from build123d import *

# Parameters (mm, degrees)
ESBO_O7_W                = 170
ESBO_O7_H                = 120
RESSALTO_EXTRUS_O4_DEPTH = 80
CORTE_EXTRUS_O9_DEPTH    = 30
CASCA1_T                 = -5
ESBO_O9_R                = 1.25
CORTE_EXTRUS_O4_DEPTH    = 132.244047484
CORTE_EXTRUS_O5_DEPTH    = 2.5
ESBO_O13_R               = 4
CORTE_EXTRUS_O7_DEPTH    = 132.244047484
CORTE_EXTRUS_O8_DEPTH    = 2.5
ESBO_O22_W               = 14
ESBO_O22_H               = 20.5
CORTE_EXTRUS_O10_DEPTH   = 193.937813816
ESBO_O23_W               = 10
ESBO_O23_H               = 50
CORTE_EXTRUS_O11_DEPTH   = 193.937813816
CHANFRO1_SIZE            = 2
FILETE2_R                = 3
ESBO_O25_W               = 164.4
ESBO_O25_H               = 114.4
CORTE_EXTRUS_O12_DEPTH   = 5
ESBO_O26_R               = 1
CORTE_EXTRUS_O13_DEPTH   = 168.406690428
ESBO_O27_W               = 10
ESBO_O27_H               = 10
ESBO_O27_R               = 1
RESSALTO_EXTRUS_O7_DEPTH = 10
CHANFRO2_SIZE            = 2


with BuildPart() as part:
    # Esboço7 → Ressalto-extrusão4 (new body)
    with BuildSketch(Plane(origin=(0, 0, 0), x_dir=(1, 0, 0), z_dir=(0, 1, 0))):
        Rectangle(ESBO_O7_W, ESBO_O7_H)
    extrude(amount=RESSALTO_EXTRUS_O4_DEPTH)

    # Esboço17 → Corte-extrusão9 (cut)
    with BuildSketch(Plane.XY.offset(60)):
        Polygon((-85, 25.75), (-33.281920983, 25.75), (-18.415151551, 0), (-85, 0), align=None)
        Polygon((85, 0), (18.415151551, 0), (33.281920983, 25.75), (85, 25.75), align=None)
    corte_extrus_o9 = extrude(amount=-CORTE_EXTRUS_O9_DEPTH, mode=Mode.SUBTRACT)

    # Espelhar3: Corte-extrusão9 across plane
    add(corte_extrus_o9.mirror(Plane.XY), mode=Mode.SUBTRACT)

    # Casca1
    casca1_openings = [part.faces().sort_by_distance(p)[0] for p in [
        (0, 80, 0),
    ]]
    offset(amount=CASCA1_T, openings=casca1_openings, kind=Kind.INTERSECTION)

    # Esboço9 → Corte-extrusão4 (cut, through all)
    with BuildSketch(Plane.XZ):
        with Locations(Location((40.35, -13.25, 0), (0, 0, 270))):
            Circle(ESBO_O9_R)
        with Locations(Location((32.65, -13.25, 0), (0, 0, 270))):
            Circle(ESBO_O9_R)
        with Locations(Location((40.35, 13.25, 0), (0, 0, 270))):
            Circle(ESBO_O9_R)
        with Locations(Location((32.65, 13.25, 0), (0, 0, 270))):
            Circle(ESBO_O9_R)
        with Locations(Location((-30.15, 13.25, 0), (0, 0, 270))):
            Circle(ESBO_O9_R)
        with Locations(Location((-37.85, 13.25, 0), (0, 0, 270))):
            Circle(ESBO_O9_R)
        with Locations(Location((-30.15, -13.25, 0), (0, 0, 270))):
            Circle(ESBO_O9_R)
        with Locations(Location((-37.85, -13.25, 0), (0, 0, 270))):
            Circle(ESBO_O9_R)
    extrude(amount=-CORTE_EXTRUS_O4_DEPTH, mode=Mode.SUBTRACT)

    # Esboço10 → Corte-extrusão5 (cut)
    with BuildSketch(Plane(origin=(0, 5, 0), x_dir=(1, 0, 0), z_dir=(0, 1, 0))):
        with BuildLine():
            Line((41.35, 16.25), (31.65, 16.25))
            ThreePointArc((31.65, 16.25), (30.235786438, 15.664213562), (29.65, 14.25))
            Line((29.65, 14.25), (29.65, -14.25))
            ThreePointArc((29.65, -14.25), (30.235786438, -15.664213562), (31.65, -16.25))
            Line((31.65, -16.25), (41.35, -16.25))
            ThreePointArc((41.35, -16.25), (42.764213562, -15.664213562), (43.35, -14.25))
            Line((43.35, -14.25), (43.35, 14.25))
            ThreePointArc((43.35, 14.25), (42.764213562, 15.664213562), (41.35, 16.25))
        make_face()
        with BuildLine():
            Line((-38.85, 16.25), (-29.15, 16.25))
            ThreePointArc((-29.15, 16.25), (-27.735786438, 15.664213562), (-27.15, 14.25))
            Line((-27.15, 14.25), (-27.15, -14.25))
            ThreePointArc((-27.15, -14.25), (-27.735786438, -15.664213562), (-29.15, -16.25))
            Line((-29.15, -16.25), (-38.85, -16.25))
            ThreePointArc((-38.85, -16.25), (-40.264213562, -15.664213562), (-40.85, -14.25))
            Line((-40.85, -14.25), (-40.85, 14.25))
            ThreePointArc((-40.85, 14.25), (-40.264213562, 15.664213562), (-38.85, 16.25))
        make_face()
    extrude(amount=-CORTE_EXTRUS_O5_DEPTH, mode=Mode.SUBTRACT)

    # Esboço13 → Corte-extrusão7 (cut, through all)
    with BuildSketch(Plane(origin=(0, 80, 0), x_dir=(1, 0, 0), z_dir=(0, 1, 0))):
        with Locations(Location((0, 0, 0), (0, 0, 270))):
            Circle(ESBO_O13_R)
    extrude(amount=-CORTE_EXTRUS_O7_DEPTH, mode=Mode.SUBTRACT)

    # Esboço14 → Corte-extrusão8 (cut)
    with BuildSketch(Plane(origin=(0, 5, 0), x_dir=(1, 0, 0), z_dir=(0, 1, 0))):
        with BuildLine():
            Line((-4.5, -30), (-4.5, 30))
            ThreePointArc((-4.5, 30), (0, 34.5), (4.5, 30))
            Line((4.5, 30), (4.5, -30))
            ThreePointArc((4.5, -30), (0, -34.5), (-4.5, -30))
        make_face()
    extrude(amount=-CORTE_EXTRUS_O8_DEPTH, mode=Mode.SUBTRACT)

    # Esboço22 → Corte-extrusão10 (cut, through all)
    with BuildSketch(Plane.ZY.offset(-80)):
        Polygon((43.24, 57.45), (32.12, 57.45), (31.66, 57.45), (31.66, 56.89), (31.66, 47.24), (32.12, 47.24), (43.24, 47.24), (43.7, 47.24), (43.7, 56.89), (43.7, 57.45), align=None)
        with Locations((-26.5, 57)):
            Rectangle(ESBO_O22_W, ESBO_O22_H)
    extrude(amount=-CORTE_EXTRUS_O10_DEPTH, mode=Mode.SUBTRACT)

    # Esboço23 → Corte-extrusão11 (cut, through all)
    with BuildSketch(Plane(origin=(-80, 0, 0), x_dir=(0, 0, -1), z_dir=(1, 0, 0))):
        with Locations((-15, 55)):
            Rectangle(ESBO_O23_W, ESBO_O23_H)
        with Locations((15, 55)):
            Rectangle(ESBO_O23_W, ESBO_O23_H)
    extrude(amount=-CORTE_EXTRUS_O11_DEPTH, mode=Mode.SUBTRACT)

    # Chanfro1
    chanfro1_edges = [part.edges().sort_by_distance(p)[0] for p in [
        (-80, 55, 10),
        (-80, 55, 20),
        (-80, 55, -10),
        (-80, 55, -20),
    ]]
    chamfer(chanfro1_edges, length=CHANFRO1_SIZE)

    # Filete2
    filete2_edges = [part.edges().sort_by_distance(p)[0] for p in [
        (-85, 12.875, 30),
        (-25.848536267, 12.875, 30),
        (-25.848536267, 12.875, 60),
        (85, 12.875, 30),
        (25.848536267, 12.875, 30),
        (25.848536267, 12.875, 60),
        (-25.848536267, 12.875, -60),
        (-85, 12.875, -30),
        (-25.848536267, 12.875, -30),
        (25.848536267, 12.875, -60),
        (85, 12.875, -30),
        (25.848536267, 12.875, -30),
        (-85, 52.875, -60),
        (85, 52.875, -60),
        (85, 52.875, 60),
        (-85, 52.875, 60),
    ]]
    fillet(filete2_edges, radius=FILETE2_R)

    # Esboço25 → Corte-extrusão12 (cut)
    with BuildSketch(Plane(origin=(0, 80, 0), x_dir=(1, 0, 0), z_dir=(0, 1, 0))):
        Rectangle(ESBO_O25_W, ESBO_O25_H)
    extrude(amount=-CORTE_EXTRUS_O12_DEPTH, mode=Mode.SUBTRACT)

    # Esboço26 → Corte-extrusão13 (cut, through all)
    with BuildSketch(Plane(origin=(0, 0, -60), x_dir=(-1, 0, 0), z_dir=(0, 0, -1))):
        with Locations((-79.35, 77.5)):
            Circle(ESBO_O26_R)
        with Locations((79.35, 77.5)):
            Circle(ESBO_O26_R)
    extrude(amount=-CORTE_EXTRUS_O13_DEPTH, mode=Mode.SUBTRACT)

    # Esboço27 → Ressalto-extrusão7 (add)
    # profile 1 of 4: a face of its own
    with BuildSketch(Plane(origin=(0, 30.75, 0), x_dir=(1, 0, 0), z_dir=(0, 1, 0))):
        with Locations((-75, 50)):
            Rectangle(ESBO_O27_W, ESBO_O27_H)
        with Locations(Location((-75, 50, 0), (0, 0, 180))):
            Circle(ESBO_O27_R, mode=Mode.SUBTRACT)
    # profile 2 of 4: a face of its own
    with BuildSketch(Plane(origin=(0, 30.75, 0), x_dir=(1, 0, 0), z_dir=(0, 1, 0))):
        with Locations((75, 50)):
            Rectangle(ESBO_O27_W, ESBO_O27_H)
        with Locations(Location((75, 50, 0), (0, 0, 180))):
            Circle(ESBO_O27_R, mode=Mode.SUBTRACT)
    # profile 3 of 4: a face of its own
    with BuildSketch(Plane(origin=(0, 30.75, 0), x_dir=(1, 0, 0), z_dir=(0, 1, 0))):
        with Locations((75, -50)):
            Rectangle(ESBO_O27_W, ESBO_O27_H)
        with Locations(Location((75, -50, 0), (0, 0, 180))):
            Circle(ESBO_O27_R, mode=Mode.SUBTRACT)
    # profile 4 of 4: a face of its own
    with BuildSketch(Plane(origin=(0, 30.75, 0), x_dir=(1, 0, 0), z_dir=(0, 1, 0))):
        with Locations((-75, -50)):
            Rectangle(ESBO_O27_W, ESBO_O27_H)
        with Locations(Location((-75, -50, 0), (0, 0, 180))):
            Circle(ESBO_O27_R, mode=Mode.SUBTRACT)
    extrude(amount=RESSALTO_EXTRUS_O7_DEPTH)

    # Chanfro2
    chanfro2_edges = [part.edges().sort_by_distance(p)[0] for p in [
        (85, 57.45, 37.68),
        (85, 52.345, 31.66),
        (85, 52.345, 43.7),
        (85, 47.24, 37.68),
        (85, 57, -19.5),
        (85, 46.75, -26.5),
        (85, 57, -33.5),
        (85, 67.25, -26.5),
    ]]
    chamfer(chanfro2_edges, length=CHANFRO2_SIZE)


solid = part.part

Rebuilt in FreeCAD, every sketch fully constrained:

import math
import FreeCAD as App
import Part
import Sketcher

V = App.Vector
Q = App.Units.Quantity


def edges_at(feature, points):
    """Names of the edges that pass closest to the given points."""
    edges = feature.Shape.Edges
    near = lambda p: min(range(len(edges)), key=lambda i: edges[i].distToShape(Part.Vertex(*p))[0])
    return sorted({f"Edge{near(p) + 1}" for p in points})


def faces_at(feature, points):
    """Names of the faces that lie closest to the given points."""
    faces = feature.Shape.Faces
    near = lambda p: min(range(len(faces)), key=lambda i: faces[i].distToShape(Part.Vertex(*p))[0])
    return sorted({f"Face{near(p) + 1}" for p in points})


def add_polygon(sketch, points):
    """Adds a closed chain of lines whose ends are joined by coincident constraints."""
    first, n = sketch.GeometryCount, len(points)
    for a, b in zip(points, points[1:] + points[:1]):
        sketch.addGeometry(Part.LineSegment(App.Vector(*a, 0), App.Vector(*b, 0)), False)
    for i in range(n):
        sketch.addConstraint(Sketcher.Constraint("Coincident", first + i, 2, first + (i + 1) % n, 1))

doc = App.newDocument("Part")
params = doc.addObject("Spreadsheet::Sheet", "Params")
for row, (alias, value) in enumerate([
    ("sketch1_width", "170 mm"),
    ("sketch1_height", "120 mm"),
    ("pad1_length", "80 mm"),
    ("sketch2_height", "25.75 mm"),
    ("pocket1_length", "30 mm"),
    ("thickness_wall", "5 mm"),
    ("sketch3_diameter", "2.5 mm"),
    ("sketch4_radius", "2 mm"),
    ("sketch4_width", "9.7 mm"),
    ("sketch4_height", "28.5 mm"),
    ("pocket3_length", "2.5 mm"),
    ("sketch5_diameter", "8 mm"),
    ("sketch6_radius", "4.5 mm"),
    ("sketch6_height", "60 mm"),
    ("pocket5_length", "2.5 mm"),
    ("sketch7_height", "14 mm"),
    ("sketch7_width", "20.5 mm"),
    ("sketch7_width2", "10.21 mm"),
    ("sketch7_height2", "12.04 mm"),
    ("sketch8_width", "50 mm"),
    ("sketch8_height", "10 mm"),
    ("chamfer_size", "2 mm"),
    ("fillet_radius", "3 mm"),
    ("sketch9_width", "164.4 mm"),
    ("sketch9_height", "114.4 mm"),
    ("pocket8_length", "5 mm"),
    ("sketch10_diameter", "2 mm"),
    ("sketch11_diameter", "2 mm"),
    ("sketch11_width", "10 mm"),
    ("pad2_length", "10 mm"),
    ("chamfer2_size", "2 mm"),
], start=1):
    params.set(f"A{row}", alias)
    params.set(f"B{row}", "=" + value)
    params.setAlias(f"B{row}", alias)

body = doc.addObject("PartDesign::Body", "Body")

# Sketch on XZ plane
sketch1 = doc.addObject("Sketcher::SketchObject", "Sketch")
body.addObject(sketch1)
sketch1.AttachmentSupport = (doc.XZ_Plane, [""])
sketch1.MapMode = "FlatFace"
add_polygon(sketch1, [(-85, -60), (-85, 60), (85, 60), (85, -60)])  # lines 0-3
sketch1.addConstraint(Sketcher.Constraint("Vertical", 0))
sketch1.addConstraint(Sketcher.Constraint("Horizontal", 1))
sketch1.addConstraint(Sketcher.Constraint("Vertical", 2))
sketch1.addConstraint(Sketcher.Constraint("Horizontal", 3))
sketch1.addConstraint(Sketcher.Constraint("Symmetric", 0, 2, 2, 2, -1, 1))
sketch1.addConstraint(Sketcher.Constraint("DistanceX", 1, 1, 1, 2, 170.0))
sketch1.addConstraint(Sketcher.Constraint("DistanceY", 0, 1, 0, 2, 120.0))
sketch1.setExpression("Constraints[9]", "Params.sketch1_width")
sketch1.setExpression("Constraints[10]", "Params.sketch1_height")
pad1 = doc.addObject("PartDesign::Pad", "Pad")
body.addObject(pad1)
pad1.Profile = sketch1
pad1.setExpression("Length", "Params.pad1_length")
pad1.Reversed = True

# Sketch on XY plane
sketch2 = doc.addObject("Sketcher::SketchObject", "Sketch001")
body.addObject(sketch2)
sketch2.AttachmentSupport = (doc.XY_Plane, [""])
sketch2.MapMode = "FlatFace"
sketch2.AttachmentOffset = App.Placement(V(0, 0, 60), App.Rotation())
add_polygon(sketch2, [(-33, 26), (-85, 26), (-85, 0), (-18, 0)])  # lines 0-3
add_polygon(sketch2, [(18, 0), (85, 0), (85, 26), (33, 26)])  # lines 4-7
sketch2.addConstraint(Sketcher.Constraint("Horizontal", 0))
sketch2.addConstraint(Sketcher.Constraint("Vertical", 1))
sketch2.addConstraint(Sketcher.Constraint("Horizontal", 2))
sketch2.addConstraint(Sketcher.Constraint("Horizontal", 4))
sketch2.addConstraint(Sketcher.Constraint("Vertical", 5))
sketch2.addConstraint(Sketcher.Constraint("Horizontal", 6))
sketch2.addConstraint(Sketcher.Constraint("Symmetric", 1, 2, 4, 2, -1, 1))
sketch2.addConstraint(Sketcher.Constraint("Symmetric", 3, 2, 6, 2, -2))
sketch2.addConstraint(Sketcher.Constraint("Symmetric", 2, 2, 7, 2, -2))
sketch2.addConstraint(Sketcher.Constraint("Angle", 3, Q("120 deg")))
sketch2.addConstraint(Sketcher.Constraint("DistanceX", 0, 2, -1, 1, 85.0))
sketch2.addConstraint(Sketcher.Constraint("DistanceY", 1, 2, 1, 1, 25.75))
sketch2.addConstraint(Sketcher.Constraint("DistanceX", 0, 2, 0, 1, 51.718079))
sketch2.setExpression("Constraints[19]", "Params.sketch2_height")
pocket1 = doc.addObject("PartDesign::Pocket", "Pocket")
body.addObject(pocket1)
pocket1.Profile = sketch2
pocket1.setExpression("Length", "Params.pocket1_length")
doc.recompute()

mirrored = doc.addObject("PartDesign::Mirrored", "Mirrored")
body.addObject(mirrored)
mirrored.Originals = [pocket1]
mirrored.MirrorPlane = (doc.XY_Plane, [""])
body.Tip = mirrored
doc.recompute()

thickness = doc.addObject("PartDesign::Thickness", "Thickness")
body.addObject(thickness)
thickness.Base = (mirrored, faces_at(mirrored, [(0, 80, 0)]))
thickness.setExpression("Value", "Params.thickness_wall")
thickness.Reversed = True
thickness.Join = "Intersection"

# Sketch on XZ plane
sketch3 = doc.addObject("Sketcher::SketchObject", "Sketch002")
body.addObject(sketch3)
sketch3.AttachmentSupport = (doc.XZ_Plane, [""])
sketch3.MapMode = "FlatFace"
sketch3.addGeometry(Part.Circle(V(40.4, -13.2, 0), V(0, 0, 1), 1.2), False)
sketch3.addGeometry(Part.Circle(V(32.6, -13.2, 0), V(0, 0, 1), 1.2), False)
sketch3.addGeometry(Part.Circle(V(40.4, 13.2, 0), V(0, 0, 1), 1.2), False)
sketch3.addGeometry(Part.Circle(V(32.6, 13.2, 0), V(0, 0, 1), 1.2), False)
sketch3.addGeometry(Part.Circle(V(-30.1, 13.2, 0), V(0, 0, 1), 1.2), False)
sketch3.addGeometry(Part.Circle(V(-37.9, 13.2, 0), V(0, 0, 1), 1.2), False)
sketch3.addGeometry(Part.Circle(V(-30.1, -13.2, 0), V(0, 0, 1), 1.2), False)
sketch3.addGeometry(Part.Circle(V(-37.9, -13.2, 0), V(0, 0, 1), 1.2), False)
sketch3.addConstraint(Sketcher.Constraint("Equal", 0, 1))
sketch3.addConstraint(Sketcher.Constraint("Equal", 1, 2))
sketch3.addConstraint(Sketcher.Constraint("Equal", 2, 3))
sketch3.addConstraint(Sketcher.Constraint("Equal", 3, 4))
sketch3.addConstraint(Sketcher.Constraint("Equal", 4, 5))
sketch3.addConstraint(Sketcher.Constraint("Equal", 5, 6))
sketch3.addConstraint(Sketcher.Constraint("Equal", 6, 7))
sketch3.addConstraint(Sketcher.Constraint("Symmetric", 0, 3, 2, 3, -1))
sketch3.addConstraint(Sketcher.Constraint("Symmetric", 1, 3, 3, 3, -1))
sketch3.addConstraint(Sketcher.Constraint("Symmetric", 4, 3, 6, 3, -1))
sketch3.addConstraint(Sketcher.Constraint("Symmetric", 5, 3, 7, 3, -1))
sketch3.addConstraint(Sketcher.Constraint("Horizontal", 0, 3, 1, 3))
sketch3.addConstraint(Sketcher.Constraint("Horizontal", 3, 3, 4, 3))
sketch3.addConstraint(Sketcher.Constraint("Horizontal", 4, 3, 5, 3))
sketch3.addConstraint(Sketcher.Constraint("Diameter", 0, 2.5))
sketch3.addConstraint(Sketcher.Constraint("DistanceX", 1, 3, 0, 3, 7.7))
sketch3.addConstraint(Sketcher.Constraint("DistanceY", 0, 3, 2, 3, 26.5))
sketch3.addConstraint(Sketcher.Constraint("DistanceX", 4, 3, 3, 3, 62.8))
sketch3.addConstraint(Sketcher.Constraint("DistanceX", 5, 3, 4, 3, 7.7))
sketch3.addConstraint(Sketcher.Constraint("DistanceX", -1, 1, 0, 3, 40.35))
sketch3.setExpression("Constraints[14]", "Params.sketch3_diameter")
pocket2 = doc.addObject("PartDesign::Pocket", "Pocket001")
body.addObject(pocket2)
pocket2.Profile = sketch3
pocket2.Type = "ThroughAll"

# Sketch on XZ plane
sketch4 = doc.addObject("Sketcher::SketchObject", "Sketch003")
body.addObject(sketch4)
sketch4.AttachmentSupport = (doc.XZ_Plane, [""])
sketch4.MapMode = "FlatFace"
sketch4.AttachmentOffset = App.Placement(V(0, 0, -5), App.Rotation())
sketch4.addGeometry(Part.LineSegment(V(41.4, -16.2, 0), V(31.6, -16.2, 0)), False)
sketch4.addGeometry(Part.ArcOfCircle(Part.Circle(V(31.7, -14.2, 0), V(0, 0, 1), 2), math.radians(-180), math.radians(-90)), False)
sketch4.addGeometry(Part.LineSegment(V(29.6, -14.2, 0), V(29.6, 14.2, 0)), False)
sketch4.addGeometry(Part.ArcOfCircle(Part.Circle(V(31.7, 14.2, 0), V(0, 0, 1), 2), math.radians(90), math.radians(180)), False)
sketch4.addGeometry(Part.LineSegment(V(31.6, 16.2, 0), V(41.4, 16.2, 0)), False)
sketch4.addGeometry(Part.ArcOfCircle(Part.Circle(V(41.3, 14.2, 0), V(0, 0, 1), 2), math.radians(0), math.radians(90)), False)
sketch4.addGeometry(Part.LineSegment(V(43.4, 14.2, 0), V(43.4, -14.2, 0)), False)
sketch4.addGeometry(Part.ArcOfCircle(Part.Circle(V(41.3, -14.2, 0), V(0, 0, 1), 2), math.radians(-90), math.radians(0)), False)
sketch4.addGeometry(Part.LineSegment(V(-29.1, -16.2, 0), V(-38.9, -16.2, 0)), False)
sketch4.addGeometry(Part.ArcOfCircle(Part.Circle(V(-38.8, -14.2, 0), V(0, 0, 1), 2), math.radians(-180), math.radians(-90)), False)
sketch4.addGeometry(Part.LineSegment(V(-40.9, -14.2, 0), V(-40.9, 14.2, 0)), False)
sketch4.addGeometry(Part.ArcOfCircle(Part.Circle(V(-38.8, 14.2, 0), V(0, 0, 1), 2), math.radians(90), math.radians(180)), False)
sketch4.addGeometry(Part.LineSegment(V(-38.9, 16.2, 0), V(-29.1, 16.2, 0)), False)
sketch4.addGeometry(Part.ArcOfCircle(Part.Circle(V(-29.2, 14.2, 0), V(0, 0, 1), 2), math.radians(0), math.radians(90)), False)
sketch4.addGeometry(Part.LineSegment(V(-27.1, 14.2, 0), V(-27.1, -14.2, 0)), False)
sketch4.addGeometry(Part.ArcOfCircle(Part.Circle(V(-29.2, -14.2, 0), V(0, 0, 1), 2), math.radians(-90), math.radians(0)), False)
sketch4.addConstraint(Sketcher.Constraint("Tangent", 0, 2, 1, 2))
sketch4.addConstraint(Sketcher.Constraint("Tangent", 1, 1, 2, 1))
sketch4.addConstraint(Sketcher.Constraint("Tangent", 2, 2, 3, 2))
sketch4.addConstraint(Sketcher.Constraint("Tangent", 3, 1, 4, 1))
sketch4.addConstraint(Sketcher.Constraint("Tangent", 4, 2, 5, 2))
sketch4.addConstraint(Sketcher.Constraint("Tangent", 5, 1, 6, 1))
sketch4.addConstraint(Sketcher.Constraint("Tangent", 6, 2, 7, 2))
sketch4.addConstraint(Sketcher.Constraint("Tangent", 7, 1, 0, 1))
sketch4.addConstraint(Sketcher.Constraint("Tangent", 8, 2, 9, 2))
sketch4.addConstraint(Sketcher.Constraint("Tangent", 9, 1, 10, 1))
sketch4.addConstraint(Sketcher.Constraint("Tangent", 10, 2, 11, 2))
sketch4.addConstraint(Sketcher.Constraint("Tangent", 11, 1, 12, 1))
sketch4.addConstraint(Sketcher.Constraint("Tangent", 12, 2, 13, 2))
sketch4.addConstraint(Sketcher.Constraint("Tangent", 13, 1, 14, 1))
sketch4.addConstraint(Sketcher.Constraint("Tangent", 14, 2, 15, 2))
sketch4.addConstraint(Sketcher.Constraint("Tangent", 15, 1, 8, 1))
sketch4.addConstraint(Sketcher.Constraint("Horizontal", 0))
sketch4.addConstraint(Sketcher.Constraint("Vertical", 2))
sketch4.addConstraint(Sketcher.Constraint("Horizontal", 4))
sketch4.addConstraint(Sketcher.Constraint("Vertical", 6))
sketch4.addConstraint(Sketcher.Constraint("Horizontal", 8))
sketch4.addConstraint(Sketcher.Constraint("Vertical", 10))
sketch4.addConstraint(Sketcher.Constraint("Horizontal", 12))
sketch4.addConstraint(Sketcher.Constraint("Vertical", 14))
sketch4.addConstraint(Sketcher.Constraint("Equal", 1, 3))
sketch4.addConstraint(Sketcher.Constraint("Equal", 3, 5))
sketch4.addConstraint(Sketcher.Constraint("Equal", 5, 7))
sketch4.addConstraint(Sketcher.Constraint("Equal", 7, 9))
sketch4.addConstraint(Sketcher.Constraint("Equal", 9, 11))
sketch4.addConstraint(Sketcher.Constraint("Equal", 11, 13))
sketch4.addConstraint(Sketcher.Constraint("Equal", 13, 15))
sketch4.addConstraint(Sketcher.Constraint("Horizontal", 7, 3, 9, 3))
sketch4.addConstraint(Sketcher.Constraint("Horizontal", 5, 3, 11, 3))
sketch4.addConstraint(Sketcher.Constraint("Equal", 4, 8))
sketch4.addConstraint(Sketcher.Constraint("Radius", 1, 2.0))
sketch4.addConstraint(Sketcher.Constraint("DistanceX", 0, 2, 0, 1, 9.7))
sketch4.addConstraint(Sketcher.Constraint("DistanceY", 2, 1, 2, 2, 28.5))
sketch4.addConstraint(Sketcher.Constraint("DistanceX", 9, 3, 1, 3, 70.5))
sketch4.addConstraint(Sketcher.Constraint("DistanceX", -1, 1, 1, 3, 31.65))
sketch4.addConstraint(Sketcher.Constraint("DistanceY", 1, 3, -1, 1, 14.25))
sketch4.setExpression("Constraints[34]", "Params.sketch4_radius")
sketch4.setExpression("Constraints[35]", "Params.sketch4_width")
sketch4.setExpression("Constraints[36]", "Params.sketch4_height")
pocket3 = doc.addObject("PartDesign::Pocket", "Pocket002")
body.addObject(pocket3)
pocket3.Profile = sketch4
pocket3.setExpression("Length", "Params.pocket3_length")
pocket3.Reversed = True

# Sketch on XZ plane
sketch5 = doc.addObject("Sketcher::SketchObject", "Sketch004")
body.addObject(sketch5)
sketch5.AttachmentSupport = (doc.XZ_Plane, [""])
sketch5.MapMode = "FlatFace"
sketch5.AttachmentOffset = App.Placement(V(0, 0, -80), App.Rotation())
sketch5.addGeometry(Part.Circle(V(0, 0, 0), V(0, 0, 1), 4), False)
sketch5.addConstraint(Sketcher.Constraint("Coincident", 0, 3, -1, 1))
sketch5.addConstraint(Sketcher.Constraint("Diameter", 0, 8.0))
sketch5.setExpression("Constraints[1]", "Params.sketch5_diameter")
pocket4 = doc.addObject("PartDesign::Pocket", "Pocket003")
body.addObject(pocket4)
pocket4.Profile = sketch5
pocket4.Type = "ThroughAll"
pocket4.Reversed = True

# Sketch on XZ plane
sketch6 = doc.addObject("Sketcher::SketchObject", "Sketch005")
body.addObject(sketch6)
sketch6.AttachmentSupport = (doc.XZ_Plane, [""])
sketch6.MapMode = "FlatFace"
sketch6.AttachmentOffset = App.Placement(V(0, 0, -5), App.Rotation())
sketch6.addGeometry(Part.LineSegment(V(-4.5, -30, 0), V(-4.5, 30, 0)), False)
sketch6.addGeometry(Part.ArcOfCircle(Part.Circle(V(0, 30, 0), V(0, 0, 1), 4.5), math.radians(0), math.radians(180)), False)
sketch6.addGeometry(Part.LineSegment(V(4.5, 30, 0), V(4.5, -30, 0)), False)
sketch6.addGeometry(Part.ArcOfCircle(Part.Circle(V(0, -30, 0), V(0, 0, 1), 4.5), math.radians(180), math.radians(360)), False)
sketch6.addConstraint(Sketcher.Constraint("Tangent", 0, 2, 1, 2))
sketch6.addConstraint(Sketcher.Constraint("Tangent", 1, 1, 2, 1))
sketch6.addConstraint(Sketcher.Constraint("Tangent", 2, 2, 3, 2))
sketch6.addConstraint(Sketcher.Constraint("Tangent", 3, 1, 0, 1))
sketch6.addConstraint(Sketcher.Constraint("Vertical", 0))
sketch6.addConstraint(Sketcher.Constraint("Vertical", 2))
sketch6.addConstraint(Sketcher.Constraint("Symmetric", 1, 3, 3, 3, -1, 1))
sketch6.addConstraint(Sketcher.Constraint("Radius", 1, 4.5))
sketch6.addConstraint(Sketcher.Constraint("DistanceY", 0, 1, 0, 2, 60.0))
sketch6.setExpression("Constraints[7]", "Params.sketch6_radius")
sketch6.setExpression("Constraints[8]", "Params.sketch6_height")
pocket5 = doc.addObject("PartDesign::Pocket", "Pocket004")
body.addObject(pocket5)
pocket5.Profile = sketch6
pocket5.setExpression("Length", "Params.pocket5_length")
pocket5.Reversed = True

# Sketch on YZ plane
sketch7 = doc.addObject("Sketcher::SketchObject", "Sketch006")
body.addObject(sketch7)
sketch7.AttachmentSupport = (doc.YZ_Plane, [""])
sketch7.MapMode = "FlatFace"
sketch7.AttachmentOffset = App.Placement(V(0, 0, 80), App.Rotation())
add_polygon(sketch7, [(57, 32), (47, 32), (47, 44), (57, 44)])  # lines 0-3
add_polygon(sketch7, [(67, -34), (47, -34), (47, -20), (67, -20)])  # lines 4-7
sketch7.addConstraint(Sketcher.Constraint("Horizontal", 0))
sketch7.addConstraint(Sketcher.Constraint("Vertical", 1))
sketch7.addConstraint(Sketcher.Constraint("Horizontal", 2))
sketch7.addConstraint(Sketcher.Constraint("Vertical", 3))
sketch7.addConstraint(Sketcher.Constraint("Horizontal", 4))
sketch7.addConstraint(Sketcher.Constraint("Vertical", 5))
sketch7.addConstraint(Sketcher.Constraint("Horizontal", 6))
sketch7.addConstraint(Sketcher.Constraint("Vertical", 7))
sketch7.addConstraint(Sketcher.Constraint("DistanceY", 5, 1, 5, 2, 14.0))
sketch7.addConstraint(Sketcher.Constraint("DistanceX", 4, 2, 4, 1, 20.5))
sketch7.addConstraint(Sketcher.Constraint("DistanceX", 0, 2, 0, 1, 10.21))
sketch7.addConstraint(Sketcher.Constraint("DistanceY", 1, 1, 1, 2, 12.04))
sketch7.addConstraint(Sketcher.Constraint("DistanceY", -1, 1, 1, 2, 43.7))
sketch7.addConstraint(Sketcher.Constraint("DistanceY", 4, 2, -1, 1, 33.5))
sketch7.addConstraint(Sketcher.Constraint("DistanceX", 4, 2, 3, 2, 10.7))
sketch7.addConstraint(Sketcher.Constraint("DistanceX", -1, 1, 0, 2, 47.24))
sketch7.setExpression("Constraints[16]", "Params.sketch7_height")
sketch7.setExpression("Constraints[17]", "Params.sketch7_width")
sketch7.setExpression("Constraints[18]", "Params.sketch7_width2")
sketch7.setExpression("Constraints[19]", "Params.sketch7_height2")
pocket6 = doc.addObject("PartDesign::Pocket", "Pocket005")
body.addObject(pocket6)
pocket6.Profile = sketch7
pocket6.Type = "ThroughAll"
pocket6.Reversed = True

# Sketch on YZ plane
sketch8 = doc.addObject("Sketcher::SketchObject", "Sketch007")
body.addObject(sketch8)
sketch8.AttachmentSupport = (doc.YZ_Plane, [""])
sketch8.MapMode = "FlatFace"
sketch8.AttachmentOffset = App.Placement(V(0, 0, -80), App.Rotation())
add_polygon(sketch8, [(80, 20), (30, 20), (30, 10), (80, 10)])  # lines 0-3
add_polygon(sketch8, [(80, -10), (30, -10), (30, -20), (80, -20)])  # lines 4-7
sketch8.addConstraint(Sketcher.Constraint("Horizontal", 0))
sketch8.addConstraint(Sketcher.Constraint("Vertical", 1))
sketch8.addConstraint(Sketcher.Constraint("Horizontal", 2))
sketch8.addConstraint(Sketcher.Constraint("Vertical", 3))
sketch8.addConstraint(Sketcher.Constraint("Horizontal", 4))
sketch8.addConstraint(Sketcher.Constraint("Vertical", 5))
sketch8.addConstraint(Sketcher.Constraint("Horizontal", 6))
sketch8.addConstraint(Sketcher.Constraint("Vertical", 7))
sketch8.addConstraint(Sketcher.Constraint("Symmetric", 1, 2, 4, 2, -1))
sketch8.addConstraint(Sketcher.Constraint("Symmetric", 3, 2, 6, 2, -1))
sketch8.addConstraint(Sketcher.Constraint("DistanceX", 0, 2, 0, 1, 50.0))
sketch8.addConstraint(Sketcher.Constraint("DistanceY", 1, 2, 1, 1, 10.0))
sketch8.addConstraint(Sketcher.Constraint("DistanceX", -1, 1, 0, 2, 30.0))
sketch8.addConstraint(Sketcher.Constraint("DistanceY", -1, 1, 0, 2, 20.0))
sketch8.setExpression("Constraints[18]", "Params.sketch8_width")
sketch8.setExpression("Constraints[19]", "Params.sketch8_height")
pocket7 = doc.addObject("PartDesign::Pocket", "Pocket006")
body.addObject(pocket7)
pocket7.Profile = sketch8
pocket7.Type = "ThroughAll"
doc.recompute()

chamfer = doc.addObject("PartDesign::Chamfer", "Chamfer")
body.addObject(chamfer)
chamfer.Base = (pocket7, edges_at(pocket7, [
    (-80, 55, 10),
    (-80, 55, 20),
    (-80, 55, -10),
    (-80, 55, -20),
]))
chamfer.setExpression("Size", "Params.chamfer_size")
doc.recompute()

fillet = doc.addObject("PartDesign::Fillet", "Fillet")
body.addObject(fillet)
fillet.Base = (chamfer, edges_at(chamfer, [
    (-85, 12.875, 30),
    (-25.849, 12.875, 30),
    (-25.849, 12.875, 60),
    (85, 12.875, 30),
    (25.849, 12.875, 30),
    (25.849, 12.875, 60),
    (-25.849, 12.875, -60),
    (-85, 12.875, -30),
    (-25.849, 12.875, -30),
    (25.849, 12.875, -60),
    (85, 12.875, -30),
    (25.849, 12.875, -30),
    (-85, 52.875, -60),
    (85, 52.875, -60),
    (85, 52.875, 60),
    (-85, 52.875, 60),
]))
fillet.setExpression("Radius", "Params.fillet_radius")

# Sketch on XZ plane
sketch9 = doc.addObject("Sketcher::SketchObject", "Sketch008")
body.addObject(sketch9)
sketch9.AttachmentSupport = (doc.XZ_Plane, [""])
sketch9.MapMode = "FlatFace"
sketch9.AttachmentOffset = App.Placement(V(0, 0, -80), App.Rotation())
add_polygon(sketch9, [(-82, -57), (-82, 57), (82, 57), (82, -57)])  # lines 0-3
sketch9.addConstraint(Sketcher.Constraint("Vertical", 0))
sketch9.addConstraint(Sketcher.Constraint("Horizontal", 1))
sketch9.addConstraint(Sketcher.Constraint("Vertical", 2))
sketch9.addConstraint(Sketcher.Constraint("Horizontal", 3))
sketch9.addConstraint(Sketcher.Constraint("Symmetric", 0, 2, 2, 2, -1, 1))
sketch9.addConstraint(Sketcher.Constraint("DistanceX", 1, 1, 1, 2, 164.4))
sketch9.addConstraint(Sketcher.Constraint("DistanceY", 0, 1, 0, 2, 114.4))
sketch9.setExpression("Constraints[9]", "Params.sketch9_width")
sketch9.setExpression("Constraints[10]", "Params.sketch9_height")
pocket8 = doc.addObject("PartDesign::Pocket", "Pocket007")
body.addObject(pocket8)
pocket8.Profile = sketch9
pocket8.setExpression("Length", "Params.pocket8_length")
pocket8.Reversed = True

# Sketch on XY plane
sketch10 = doc.addObject("Sketcher::SketchObject", "Sketch009")
body.addObject(sketch10)
sketch10.AttachmentSupport = (doc.XY_Plane, [""])
sketch10.MapMode = "FlatFace"
sketch10.AttachmentOffset = App.Placement(V(0, 0, -60), App.Rotation())
sketch10.addGeometry(Part.Circle(V(79.3, 77.5, 0), V(0, 0, 1), 1), False)
sketch10.addGeometry(Part.Circle(V(-79.3, 77.5, 0), V(0, 0, 1), 1), False)
sketch10.addConstraint(Sketcher.Constraint("Equal", 0, 1))
sketch10.addConstraint(Sketcher.Constraint("Symmetric", 0, 3, 1, 3, -2))
sketch10.addConstraint(Sketcher.Constraint("Diameter", 0, 2.0))
sketch10.addConstraint(Sketcher.Constraint("DistanceY", -1, 1, 0, 3, 77.5))
sketch10.addConstraint(Sketcher.Constraint("DistanceX", 1, 3, 0, 3, 158.7))
sketch10.setExpression("Constraints[2]", "Params.sketch10_diameter")
pocket9 = doc.addObject("PartDesign::Pocket", "Pocket008")
body.addObject(pocket9)
pocket9.Profile = sketch10
pocket9.Type = "ThroughAll"
pocket9.Reversed = True

# Sketch on XZ plane
sketch11 = doc.addObject("Sketcher::SketchObject", "Sketch010")
body.addObject(sketch11)
sketch11.AttachmentSupport = (doc.XZ_Plane, [""])
sketch11.MapMode = "FlatFace"
sketch11.AttachmentOffset = App.Placement(V(0, 0, -30.75), App.Rotation())
add_polygon(sketch11, [(-80, -55), (-80, -45), (-70, -45), (-70, -55)])  # lines 0-3
sketch11.addGeometry(Part.Circle(V(-75, -50, 0), V(0, 0, 1), 1), False)  # 4
add_polygon(sketch11, [(70, -55), (70, -45), (80, -45), (80, -55)])  # lines 5-8
sketch11.addGeometry(Part.Circle(V(75, -50, 0), V(0, 0, 1), 1), False)  # 9
add_polygon(sketch11, [(70, 45), (70, 55), (80, 55), (80, 45)])  # lines 10-13
sketch11.addGeometry(Part.Circle(V(75, 50, 0), V(0, 0, 1), 1), False)  # 14
add_polygon(sketch11, [(-80, 45), (-80, 55), (-70, 55), (-70, 45)])  # lines 15-18
sketch11.addGeometry(Part.Circle(V(-75, 50, 0), V(0, 0, 1), 1), False)  # 19
sketch11.addConstraint(Sketcher.Constraint("Vertical", 0))
sketch11.addConstraint(Sketcher.Constraint("Horizontal", 1))
sketch11.addConstraint(Sketcher.Constraint("Vertical", 2))
sketch11.addConstraint(Sketcher.Constraint("Horizontal", 3))
sketch11.addConstraint(Sketcher.Constraint("Vertical", 5))
sketch11.addConstraint(Sketcher.Constraint("Horizontal", 6))
sketch11.addConstraint(Sketcher.Constraint("Vertical", 7))
sketch11.addConstraint(Sketcher.Constraint("Horizontal", 8))
sketch11.addConstraint(Sketcher.Constraint("Vertical", 10))
sketch11.addConstraint(Sketcher.Constraint("Horizontal", 11))
sketch11.addConstraint(Sketcher.Constraint("Vertical", 12))
sketch11.addConstraint(Sketcher.Constraint("Horizontal", 13))
sketch11.addConstraint(Sketcher.Constraint("Vertical", 15))
sketch11.addConstraint(Sketcher.Constraint("Horizontal", 16))
sketch11.addConstraint(Sketcher.Constraint("Vertical", 17))
sketch11.addConstraint(Sketcher.Constraint("Horizontal", 18))
sketch11.addConstraint(Sketcher.Constraint("Equal", 4, 9))
sketch11.addConstraint(Sketcher.Constraint("Equal", 9, 14))
sketch11.addConstraint(Sketcher.Constraint("Equal", 14, 19))
sketch11.addConstraint(Sketcher.Constraint("Symmetric", 4, 3, 14, 3, -1, 1))
sketch11.addConstraint(Sketcher.Constraint("Symmetric", 9, 3, 19, 3, -1, 1))
sketch11.addConstraint(Sketcher.Constraint("Symmetric", 2, 2, 10, 2, -1, 1))
sketch11.addConstraint(Sketcher.Constraint("Symmetric", 0, 2, 12, 2, -1, 1))
sketch11.addConstraint(Sketcher.Constraint("Symmetric", 7, 2, 15, 2, -1, 1))
sketch11.addConstraint(Sketcher.Constraint("Symmetric", 5, 2, 17, 2, -1, 1))
sketch11.addConstraint(Sketcher.Constraint("Symmetric", 4, 3, 9, 3, -2))
sketch11.addConstraint(Sketcher.Constraint("Symmetric", 1, 2, 5, 2, -2))
sketch11.addConstraint(Sketcher.Constraint("Symmetric", 3, 2, 7, 2, -2))
sketch11.addConstraint(Sketcher.Constraint("Equal", 18, 0))
sketch11.addConstraint(Sketcher.Constraint("Diameter", 4, 2.0))
sketch11.addConstraint(Sketcher.Constraint("DistanceX", 1, 1, 1, 2, 10.0))
sketch11.addConstraint(Sketcher.Constraint("DistanceX", 4, 3, -1, 1, 75.0))
sketch11.addConstraint(Sketcher.Constraint("DistanceY", 4, 3, -1, 1, 50.0))
sketch11.addConstraint(Sketcher.Constraint("DistanceX", 0, 2, -1, 1, 80.0))
sketch11.addConstraint(Sketcher.Constraint("DistanceY", 0, 2, -1, 1, 45.0))
sketch11.setExpression("Constraints[45]", "Params.sketch11_diameter")
sketch11.setExpression("Constraints[46]", "Params.sketch11_width")
pad2 = doc.addObject("PartDesign::Pad", "Pad001")
body.addObject(pad2)
pad2.Profile = sketch11
pad2.setExpression("Length", "Params.pad2_length")
pad2.Reversed = True
doc.recompute()

chamfer2 = doc.addObject("PartDesign::Chamfer", "Chamfer001")
body.addObject(chamfer2)
chamfer2.Base = (pad2, edges_at(pad2, [
    (85, 57.45, 37.68),
    (85, 52.345, 31.66),
    (85, 52.345, 43.7),
    (85, 47.24, 37.68),
    (85, 57, -19.5),
    (85, 46.75, -26.5),
    (85, 57, -33.5),
    (85, 67.25, -26.5),
]))
chamfer2.setExpression("Size", "Params.chamfer2_size")

doc.recompute()
